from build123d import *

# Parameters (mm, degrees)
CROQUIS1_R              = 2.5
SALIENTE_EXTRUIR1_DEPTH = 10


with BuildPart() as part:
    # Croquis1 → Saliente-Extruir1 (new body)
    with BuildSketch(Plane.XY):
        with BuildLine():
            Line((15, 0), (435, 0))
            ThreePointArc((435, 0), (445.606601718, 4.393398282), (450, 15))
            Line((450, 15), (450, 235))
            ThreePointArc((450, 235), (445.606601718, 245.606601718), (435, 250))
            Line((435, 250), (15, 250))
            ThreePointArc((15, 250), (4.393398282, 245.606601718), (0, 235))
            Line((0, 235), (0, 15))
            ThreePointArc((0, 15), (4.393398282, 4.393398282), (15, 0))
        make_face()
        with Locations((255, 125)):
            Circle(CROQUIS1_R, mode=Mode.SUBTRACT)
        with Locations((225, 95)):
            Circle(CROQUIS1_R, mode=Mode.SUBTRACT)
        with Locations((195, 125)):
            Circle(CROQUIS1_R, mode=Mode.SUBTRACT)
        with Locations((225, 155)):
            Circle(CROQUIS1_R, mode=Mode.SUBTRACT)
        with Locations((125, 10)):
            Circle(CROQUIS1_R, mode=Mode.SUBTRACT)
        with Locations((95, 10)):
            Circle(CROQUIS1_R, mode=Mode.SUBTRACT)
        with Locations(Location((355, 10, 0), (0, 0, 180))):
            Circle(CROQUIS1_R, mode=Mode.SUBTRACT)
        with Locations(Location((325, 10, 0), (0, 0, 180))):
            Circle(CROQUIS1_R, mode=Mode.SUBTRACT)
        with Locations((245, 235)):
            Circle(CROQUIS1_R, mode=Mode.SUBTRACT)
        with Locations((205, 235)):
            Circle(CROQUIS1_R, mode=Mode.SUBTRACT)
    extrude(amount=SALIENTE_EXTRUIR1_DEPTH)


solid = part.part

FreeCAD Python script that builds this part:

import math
import FreeCAD as App
import Part
import Sketcher

V = App.Vector
Q = App.Units.Quantity

doc = App.newDocument("Part")
body = doc.addObject("PartDesign::Body", "Body")

sketch1 = body.newObject("Sketcher::SketchObject", "Sketch")
sketch1.AttachmentSupport = (doc.getObject("XY_Plane"), [""])
sketch1.MapMode = "FlatFace"
sketch1.addGeometry(Part.LineSegment(V(15, 0, 0), V(435, 0, 0)), False)
sketch1.addGeometry(Part.ArcOfCircle(Part.Circle(V(435, 15, 0), V(0, 0, 1), 15), math.radians(-90), math.radians(0)), False)
sketch1.addGeometry(Part.LineSegment(V(450, 15, 0), V(450, 235, 0)), False)
sketch1.addGeometry(Part.ArcOfCircle(Part.Circle(V(435, 235, 0), V(0, 0, 1), 15), math.radians(0), math.radians(90)), False)
sketch1.addGeometry(Part.LineSegment(V(435, 250, 0), V(15, 250, 0)), False)
sketch1.addGeometry(Part.ArcOfCircle(Part.Circle(V(15, 235, 0), V(0, 0, 1), 15), math.radians(90), math.radians(180)), False)
sketch1.addGeometry(Part.LineSegment(V(0, 235, 0), V(0, 15, 0)), False)
sketch1.addGeometry(Part.ArcOfCircle(Part.Circle(V(15, 15, 0), V(0, 0, 1), 15), math.radians(180), math.radians(270)), False)
sketch1.addGeometry(Part.Circle(V(95, 10, 0), V(0, 0, 1), 2.5), False)
sketch1.addGeometry(Part.Circle(V(125, 10, 0), V(0, 0, 1), 2.5), False)
sketch1.addGeometry(Part.Circle(V(325, 10, 0), V(0, 0, 1), 2.5), False)
sketch1.addGeometry(Part.Circle(V(355, 10, 0), V(0, 0, 1), 2.5), False)
sketch1.addGeometry(Part.Circle(V(225, 95, 0), V(0, 0, 1), 2.5), False)
sketch1.addGeometry(Part.Circle(V(195, 125, 0), V(0, 0, 1), 2.5), False)
sketch1.addGeometry(Part.Circle(V(205, 235, 0), V(0, 0, 1), 2.5), False)
sketch1.addGeometry(Part.Circle(V(255, 125, 0), V(0, 0, 1), 2.5), False)
sketch1.addGeometry(Part.Circle(V(225, 155, 0), V(0, 0, 1), 2.5), False)
sketch1.addGeometry(Part.Circle(V(245, 235, 0), V(0, 0, 1), 2.5), False)
sketch1.addConstraint(Sketcher.Constraint("Tangent", 0, 2, 1, 1))
sketch1.addConstraint(Sketcher.Constraint("Tangent", 1, 2, 2, 1))
sketch1.addConstraint(Sketcher.Constraint("Tangent", 2, 2, 3, 1))
sketch1.addConstraint(Sketcher.Constraint("Tangent", 3, 2, 4, 1))
sketch1.addConstraint(Sketcher.Constraint("Tangent", 4, 2, 5, 1))
sketch1.addConstraint(Sketcher.Constraint("Tangent", 5, 2, 6, 1))
sketch1.addConstraint(Sketcher.Constraint("Tangent", 6, 2, 7, 1))
sketch1.addConstraint(Sketcher.Constraint("Tangent", 7, 2, 0, 1))
sketch1.addConstraint(Sketcher.Constraint("Horizontal", 0))
sketch1.addConstraint(Sketcher.Constraint("Vertical", 2))
sketch1.addConstraint(Sketcher.Constraint("Horizontal", 4))
sketch1.addConstraint(Sketcher.Constraint("Vertical", 6))
sketch1.addConstraint(Sketcher.Constraint("Equal", 1, 3))
sketch1.addConstraint(Sketcher.Constraint("Equal", 3, 5))
sketch1.addConstraint(Sketcher.Constraint("Equal", 5, 7))
sketch1.addConstraint(Sketcher.Constraint("Equal", 8, 9))
sketch1.addConstraint(Sketcher.Constraint("Equal", 9, 10))
sketch1.addConstraint(Sketcher.Constraint("Equal", 10, 11))
sketch1.addConstraint(Sketcher.Constraint("Equal", 11, 12))
sketch1.addConstraint(Sketcher.Constraint("Equal", 12, 13))
sketch1.addConstraint(Sketcher.Constraint("Equal", 13, 14))
sketch1.addConstraint(Sketcher.Constraint("Equal", 14, 15))
sketch1.addConstraint(Sketcher.Constraint("Equal", 15, 16))
sketch1.addConstraint(Sketcher.Constraint("Equal", 16, 17))
sketch1.addConstraint(Sketcher.Constraint("PointOnObject", 0, 2, -1))
sketch1.addConstraint(Sketcher.Constraint("PointOnObject", 5, 2, -2))
sketch1.addConstraint(Sketcher.Constraint("Horizontal", 8, 3, 9, 3))
sketch1.addConstraint(Sketcher.Constraint("Horizontal", 9, 3, 10, 3))
sketch1.addConstraint(Sketcher.Constraint("Horizontal", 10, 3, 11, 3))
sketch1.addConstraint(Sketcher.Constraint("Horizontal", 5, 3, 14, 3))
sketch1.addConstraint(Sketcher.Constraint("Horizontal", 13, 3, 15, 3))
sketch1.addConstraint(Sketcher.Constraint("Horizontal", 14, 3, 17, 3))
sketch1.addConstraint(Sketcher.Constraint("Vertical", 12, 3, 16, 3))
sketch1.addConstraint(Sketcher.Constraint("Diameter", 8, Q("5 mm")))
sketch1.addConstraint(Sketcher.Constraint("Radius", 1, Q("15 mm")))
sketch1.addConstraint(Sketcher.Constraint("DistanceX", 0, 1, 0, 2, Q("420 mm")))
sketch1.addConstraint(Sketcher.Constraint("DistanceY", 2, 1, 2, 2, Q("220 mm")))
sketch1.addConstraint(Sketcher.Constraint("DistanceX", -1, 1, 8, 3, Q("95 mm")))
sketch1.addConstraint(Sketcher.Constraint("DistanceY", -1, 1, 8, 3, Q("10 mm")))
sketch1.addConstraint(Sketcher.Constraint("DistanceX", -1, 1, 9, 3, Q("125 mm")))
sketch1.addConstraint(Sketcher.Constraint("DistanceX", -1, 1, 10, 3, Q("325 mm")))
sketch1.addConstraint(Sketcher.Constraint("DistanceX", -1, 1, 11, 3, Q("355 mm")))
sketch1.addConstraint(Sketcher.Constraint("DistanceX", -1, 1, 12, 3, Q("225 mm")))
sketch1.addConstraint(Sketcher.Constraint("DistanceY", -1, 1, 12, 3, Q("95 mm")))
sketch1.addConstraint(Sketcher.Constraint("DistanceX", -1, 1, 13, 3, Q("195 mm")))
sketch1.addConstraint(Sketcher.Constraint("DistanceY", -1, 1, 13, 3, Q("125 mm")))
sketch1.addConstraint(Sketcher.Constraint("DistanceX", -1, 1, 14, 3, Q("205 mm")))
sketch1.addConstraint(Sketcher.Constraint("DistanceX", -1, 1, 15, 3, Q("255 mm")))
sketch1.addConstraint(Sketcher.Constraint("DistanceY", -1, 1, 16, 3, Q("155 mm")))
sketch1.addConstraint(Sketcher.Constraint("DistanceX", -1, 1, 17, 3, Q("245 mm")))
pad1 = body.newObject("PartDesign::Pad", "Pad")
pad1.Profile = sketch1
pad1.Length = 10

doc.recompute()
